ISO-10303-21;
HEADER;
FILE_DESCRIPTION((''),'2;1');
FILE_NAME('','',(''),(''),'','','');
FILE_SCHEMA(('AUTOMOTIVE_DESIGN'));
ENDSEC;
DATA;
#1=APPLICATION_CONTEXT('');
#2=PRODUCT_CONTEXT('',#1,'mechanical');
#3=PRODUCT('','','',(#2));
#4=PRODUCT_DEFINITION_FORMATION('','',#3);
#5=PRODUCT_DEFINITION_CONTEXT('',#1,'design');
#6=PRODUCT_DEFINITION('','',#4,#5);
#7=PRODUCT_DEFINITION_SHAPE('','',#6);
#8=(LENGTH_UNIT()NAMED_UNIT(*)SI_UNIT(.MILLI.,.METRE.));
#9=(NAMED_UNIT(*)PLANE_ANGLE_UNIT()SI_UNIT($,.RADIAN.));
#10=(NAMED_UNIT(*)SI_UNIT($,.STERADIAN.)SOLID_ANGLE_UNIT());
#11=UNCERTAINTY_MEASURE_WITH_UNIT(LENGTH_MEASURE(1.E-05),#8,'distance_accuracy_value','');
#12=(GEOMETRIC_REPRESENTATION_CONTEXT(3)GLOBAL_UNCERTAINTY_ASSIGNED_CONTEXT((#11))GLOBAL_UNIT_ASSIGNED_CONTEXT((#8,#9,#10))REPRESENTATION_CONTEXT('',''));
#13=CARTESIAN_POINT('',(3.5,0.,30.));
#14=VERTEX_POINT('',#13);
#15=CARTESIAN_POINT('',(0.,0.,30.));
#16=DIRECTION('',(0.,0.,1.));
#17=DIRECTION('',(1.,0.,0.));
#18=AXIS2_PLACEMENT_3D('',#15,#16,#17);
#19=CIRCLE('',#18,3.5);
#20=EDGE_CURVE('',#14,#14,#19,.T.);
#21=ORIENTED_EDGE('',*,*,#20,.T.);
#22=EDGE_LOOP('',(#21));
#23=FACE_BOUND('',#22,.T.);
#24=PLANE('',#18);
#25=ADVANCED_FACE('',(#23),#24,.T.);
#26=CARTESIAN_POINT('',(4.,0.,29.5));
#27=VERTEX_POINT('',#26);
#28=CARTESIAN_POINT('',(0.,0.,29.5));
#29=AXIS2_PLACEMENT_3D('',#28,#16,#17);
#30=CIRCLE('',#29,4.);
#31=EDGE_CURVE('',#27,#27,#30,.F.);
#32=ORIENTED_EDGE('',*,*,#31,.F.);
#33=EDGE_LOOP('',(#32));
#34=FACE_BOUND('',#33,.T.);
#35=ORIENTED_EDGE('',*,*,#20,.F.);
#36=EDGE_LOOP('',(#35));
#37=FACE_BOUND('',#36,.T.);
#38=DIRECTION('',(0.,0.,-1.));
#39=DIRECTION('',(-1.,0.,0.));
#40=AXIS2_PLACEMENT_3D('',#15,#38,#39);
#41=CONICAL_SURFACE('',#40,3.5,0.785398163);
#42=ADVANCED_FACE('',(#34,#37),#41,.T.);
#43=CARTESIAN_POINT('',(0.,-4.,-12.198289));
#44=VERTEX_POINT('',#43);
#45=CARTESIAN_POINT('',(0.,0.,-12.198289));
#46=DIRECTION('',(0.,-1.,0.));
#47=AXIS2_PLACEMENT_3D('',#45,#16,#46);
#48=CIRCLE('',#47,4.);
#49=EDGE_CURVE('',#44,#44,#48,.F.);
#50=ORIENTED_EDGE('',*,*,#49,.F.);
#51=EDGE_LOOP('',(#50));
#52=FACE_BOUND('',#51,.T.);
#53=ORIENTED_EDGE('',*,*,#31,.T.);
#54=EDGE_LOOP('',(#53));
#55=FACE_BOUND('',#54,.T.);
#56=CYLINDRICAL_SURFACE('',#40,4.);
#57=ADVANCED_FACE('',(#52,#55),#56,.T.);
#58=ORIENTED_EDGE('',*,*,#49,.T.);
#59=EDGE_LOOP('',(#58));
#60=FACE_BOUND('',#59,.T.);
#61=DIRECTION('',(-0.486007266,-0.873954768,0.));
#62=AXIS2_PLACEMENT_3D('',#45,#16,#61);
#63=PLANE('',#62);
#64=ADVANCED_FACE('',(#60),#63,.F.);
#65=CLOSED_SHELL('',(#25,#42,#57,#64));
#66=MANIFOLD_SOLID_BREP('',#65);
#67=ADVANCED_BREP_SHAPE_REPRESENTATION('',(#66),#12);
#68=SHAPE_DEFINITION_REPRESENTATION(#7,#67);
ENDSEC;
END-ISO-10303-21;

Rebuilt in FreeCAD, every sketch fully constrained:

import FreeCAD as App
import Part
import Sketcher

V = App.Vector


def edges_at(feature, points):
    """Names of the edges that pass closest to the given points."""
    edges = feature.Shape.Edges
    near = lambda p: min(range(len(edges)), key=lambda i: edges[i].distToShape(Part.Vertex(*p))[0])
    return sorted({f"Edge{near(p) + 1}" for p in points})

doc = App.newDocument("Part")
params = doc.addObject("Spreadsheet::Sheet", "Params")
for row, (alias, value) in enumerate([
    ("sketch1_diameter", "8 mm"),
    ("pad1_length", "30 mm"),
    ("pad1_length2", "12.198289 mm"),
    ("chamfer_size", "0.5 mm"),
], start=1):
    params.set(f"A{row}", alias)
    params.set(f"B{row}", "=" + value)
    params.setAlias(f"B{row}", alias)

body = doc.addObject("PartDesign::Body", "Body")

# Sketch on XY plane
sketch1 = doc.addObject("Sketcher::SketchObject", "Sketch")
body.addObject(sketch1)
sketch1.AttachmentSupport = (doc.XY_Plane, [""])
sketch1.MapMode = "FlatFace"
sketch1.addGeometry(Part.Circle(V(0, 0, 0), V(0, 0, 1), 4), False)
sketch1.addConstraint([
    Sketcher.Constraint("Coincident", 0, 3, -1, 1),
    Sketcher.Constraint("Diameter", 0, 8.0),
])
sketch1.setExpression("Constraints[1]", "Params.sketch1_diameter")
pad1 = doc.addObject("PartDesign::Pad", "Pad")
body.addObject(pad1)
pad1.Profile = sketch1
pad1.Type = "TwoLengths"
pad1.setExpression("Length", "Params.pad1_length")
pad1.setExpression("Length2", "Params.pad1_length2")
doc.recompute()

chamfer = doc.addObject("PartDesign::Chamfer", "Chamfer")
body.addObject(chamfer)
chamfer.Base = (pad1, edges_at(pad1, [(-4, 0, 30)]))
chamfer.setExpression("Size", "Params.chamfer_size")

doc.recompute()
